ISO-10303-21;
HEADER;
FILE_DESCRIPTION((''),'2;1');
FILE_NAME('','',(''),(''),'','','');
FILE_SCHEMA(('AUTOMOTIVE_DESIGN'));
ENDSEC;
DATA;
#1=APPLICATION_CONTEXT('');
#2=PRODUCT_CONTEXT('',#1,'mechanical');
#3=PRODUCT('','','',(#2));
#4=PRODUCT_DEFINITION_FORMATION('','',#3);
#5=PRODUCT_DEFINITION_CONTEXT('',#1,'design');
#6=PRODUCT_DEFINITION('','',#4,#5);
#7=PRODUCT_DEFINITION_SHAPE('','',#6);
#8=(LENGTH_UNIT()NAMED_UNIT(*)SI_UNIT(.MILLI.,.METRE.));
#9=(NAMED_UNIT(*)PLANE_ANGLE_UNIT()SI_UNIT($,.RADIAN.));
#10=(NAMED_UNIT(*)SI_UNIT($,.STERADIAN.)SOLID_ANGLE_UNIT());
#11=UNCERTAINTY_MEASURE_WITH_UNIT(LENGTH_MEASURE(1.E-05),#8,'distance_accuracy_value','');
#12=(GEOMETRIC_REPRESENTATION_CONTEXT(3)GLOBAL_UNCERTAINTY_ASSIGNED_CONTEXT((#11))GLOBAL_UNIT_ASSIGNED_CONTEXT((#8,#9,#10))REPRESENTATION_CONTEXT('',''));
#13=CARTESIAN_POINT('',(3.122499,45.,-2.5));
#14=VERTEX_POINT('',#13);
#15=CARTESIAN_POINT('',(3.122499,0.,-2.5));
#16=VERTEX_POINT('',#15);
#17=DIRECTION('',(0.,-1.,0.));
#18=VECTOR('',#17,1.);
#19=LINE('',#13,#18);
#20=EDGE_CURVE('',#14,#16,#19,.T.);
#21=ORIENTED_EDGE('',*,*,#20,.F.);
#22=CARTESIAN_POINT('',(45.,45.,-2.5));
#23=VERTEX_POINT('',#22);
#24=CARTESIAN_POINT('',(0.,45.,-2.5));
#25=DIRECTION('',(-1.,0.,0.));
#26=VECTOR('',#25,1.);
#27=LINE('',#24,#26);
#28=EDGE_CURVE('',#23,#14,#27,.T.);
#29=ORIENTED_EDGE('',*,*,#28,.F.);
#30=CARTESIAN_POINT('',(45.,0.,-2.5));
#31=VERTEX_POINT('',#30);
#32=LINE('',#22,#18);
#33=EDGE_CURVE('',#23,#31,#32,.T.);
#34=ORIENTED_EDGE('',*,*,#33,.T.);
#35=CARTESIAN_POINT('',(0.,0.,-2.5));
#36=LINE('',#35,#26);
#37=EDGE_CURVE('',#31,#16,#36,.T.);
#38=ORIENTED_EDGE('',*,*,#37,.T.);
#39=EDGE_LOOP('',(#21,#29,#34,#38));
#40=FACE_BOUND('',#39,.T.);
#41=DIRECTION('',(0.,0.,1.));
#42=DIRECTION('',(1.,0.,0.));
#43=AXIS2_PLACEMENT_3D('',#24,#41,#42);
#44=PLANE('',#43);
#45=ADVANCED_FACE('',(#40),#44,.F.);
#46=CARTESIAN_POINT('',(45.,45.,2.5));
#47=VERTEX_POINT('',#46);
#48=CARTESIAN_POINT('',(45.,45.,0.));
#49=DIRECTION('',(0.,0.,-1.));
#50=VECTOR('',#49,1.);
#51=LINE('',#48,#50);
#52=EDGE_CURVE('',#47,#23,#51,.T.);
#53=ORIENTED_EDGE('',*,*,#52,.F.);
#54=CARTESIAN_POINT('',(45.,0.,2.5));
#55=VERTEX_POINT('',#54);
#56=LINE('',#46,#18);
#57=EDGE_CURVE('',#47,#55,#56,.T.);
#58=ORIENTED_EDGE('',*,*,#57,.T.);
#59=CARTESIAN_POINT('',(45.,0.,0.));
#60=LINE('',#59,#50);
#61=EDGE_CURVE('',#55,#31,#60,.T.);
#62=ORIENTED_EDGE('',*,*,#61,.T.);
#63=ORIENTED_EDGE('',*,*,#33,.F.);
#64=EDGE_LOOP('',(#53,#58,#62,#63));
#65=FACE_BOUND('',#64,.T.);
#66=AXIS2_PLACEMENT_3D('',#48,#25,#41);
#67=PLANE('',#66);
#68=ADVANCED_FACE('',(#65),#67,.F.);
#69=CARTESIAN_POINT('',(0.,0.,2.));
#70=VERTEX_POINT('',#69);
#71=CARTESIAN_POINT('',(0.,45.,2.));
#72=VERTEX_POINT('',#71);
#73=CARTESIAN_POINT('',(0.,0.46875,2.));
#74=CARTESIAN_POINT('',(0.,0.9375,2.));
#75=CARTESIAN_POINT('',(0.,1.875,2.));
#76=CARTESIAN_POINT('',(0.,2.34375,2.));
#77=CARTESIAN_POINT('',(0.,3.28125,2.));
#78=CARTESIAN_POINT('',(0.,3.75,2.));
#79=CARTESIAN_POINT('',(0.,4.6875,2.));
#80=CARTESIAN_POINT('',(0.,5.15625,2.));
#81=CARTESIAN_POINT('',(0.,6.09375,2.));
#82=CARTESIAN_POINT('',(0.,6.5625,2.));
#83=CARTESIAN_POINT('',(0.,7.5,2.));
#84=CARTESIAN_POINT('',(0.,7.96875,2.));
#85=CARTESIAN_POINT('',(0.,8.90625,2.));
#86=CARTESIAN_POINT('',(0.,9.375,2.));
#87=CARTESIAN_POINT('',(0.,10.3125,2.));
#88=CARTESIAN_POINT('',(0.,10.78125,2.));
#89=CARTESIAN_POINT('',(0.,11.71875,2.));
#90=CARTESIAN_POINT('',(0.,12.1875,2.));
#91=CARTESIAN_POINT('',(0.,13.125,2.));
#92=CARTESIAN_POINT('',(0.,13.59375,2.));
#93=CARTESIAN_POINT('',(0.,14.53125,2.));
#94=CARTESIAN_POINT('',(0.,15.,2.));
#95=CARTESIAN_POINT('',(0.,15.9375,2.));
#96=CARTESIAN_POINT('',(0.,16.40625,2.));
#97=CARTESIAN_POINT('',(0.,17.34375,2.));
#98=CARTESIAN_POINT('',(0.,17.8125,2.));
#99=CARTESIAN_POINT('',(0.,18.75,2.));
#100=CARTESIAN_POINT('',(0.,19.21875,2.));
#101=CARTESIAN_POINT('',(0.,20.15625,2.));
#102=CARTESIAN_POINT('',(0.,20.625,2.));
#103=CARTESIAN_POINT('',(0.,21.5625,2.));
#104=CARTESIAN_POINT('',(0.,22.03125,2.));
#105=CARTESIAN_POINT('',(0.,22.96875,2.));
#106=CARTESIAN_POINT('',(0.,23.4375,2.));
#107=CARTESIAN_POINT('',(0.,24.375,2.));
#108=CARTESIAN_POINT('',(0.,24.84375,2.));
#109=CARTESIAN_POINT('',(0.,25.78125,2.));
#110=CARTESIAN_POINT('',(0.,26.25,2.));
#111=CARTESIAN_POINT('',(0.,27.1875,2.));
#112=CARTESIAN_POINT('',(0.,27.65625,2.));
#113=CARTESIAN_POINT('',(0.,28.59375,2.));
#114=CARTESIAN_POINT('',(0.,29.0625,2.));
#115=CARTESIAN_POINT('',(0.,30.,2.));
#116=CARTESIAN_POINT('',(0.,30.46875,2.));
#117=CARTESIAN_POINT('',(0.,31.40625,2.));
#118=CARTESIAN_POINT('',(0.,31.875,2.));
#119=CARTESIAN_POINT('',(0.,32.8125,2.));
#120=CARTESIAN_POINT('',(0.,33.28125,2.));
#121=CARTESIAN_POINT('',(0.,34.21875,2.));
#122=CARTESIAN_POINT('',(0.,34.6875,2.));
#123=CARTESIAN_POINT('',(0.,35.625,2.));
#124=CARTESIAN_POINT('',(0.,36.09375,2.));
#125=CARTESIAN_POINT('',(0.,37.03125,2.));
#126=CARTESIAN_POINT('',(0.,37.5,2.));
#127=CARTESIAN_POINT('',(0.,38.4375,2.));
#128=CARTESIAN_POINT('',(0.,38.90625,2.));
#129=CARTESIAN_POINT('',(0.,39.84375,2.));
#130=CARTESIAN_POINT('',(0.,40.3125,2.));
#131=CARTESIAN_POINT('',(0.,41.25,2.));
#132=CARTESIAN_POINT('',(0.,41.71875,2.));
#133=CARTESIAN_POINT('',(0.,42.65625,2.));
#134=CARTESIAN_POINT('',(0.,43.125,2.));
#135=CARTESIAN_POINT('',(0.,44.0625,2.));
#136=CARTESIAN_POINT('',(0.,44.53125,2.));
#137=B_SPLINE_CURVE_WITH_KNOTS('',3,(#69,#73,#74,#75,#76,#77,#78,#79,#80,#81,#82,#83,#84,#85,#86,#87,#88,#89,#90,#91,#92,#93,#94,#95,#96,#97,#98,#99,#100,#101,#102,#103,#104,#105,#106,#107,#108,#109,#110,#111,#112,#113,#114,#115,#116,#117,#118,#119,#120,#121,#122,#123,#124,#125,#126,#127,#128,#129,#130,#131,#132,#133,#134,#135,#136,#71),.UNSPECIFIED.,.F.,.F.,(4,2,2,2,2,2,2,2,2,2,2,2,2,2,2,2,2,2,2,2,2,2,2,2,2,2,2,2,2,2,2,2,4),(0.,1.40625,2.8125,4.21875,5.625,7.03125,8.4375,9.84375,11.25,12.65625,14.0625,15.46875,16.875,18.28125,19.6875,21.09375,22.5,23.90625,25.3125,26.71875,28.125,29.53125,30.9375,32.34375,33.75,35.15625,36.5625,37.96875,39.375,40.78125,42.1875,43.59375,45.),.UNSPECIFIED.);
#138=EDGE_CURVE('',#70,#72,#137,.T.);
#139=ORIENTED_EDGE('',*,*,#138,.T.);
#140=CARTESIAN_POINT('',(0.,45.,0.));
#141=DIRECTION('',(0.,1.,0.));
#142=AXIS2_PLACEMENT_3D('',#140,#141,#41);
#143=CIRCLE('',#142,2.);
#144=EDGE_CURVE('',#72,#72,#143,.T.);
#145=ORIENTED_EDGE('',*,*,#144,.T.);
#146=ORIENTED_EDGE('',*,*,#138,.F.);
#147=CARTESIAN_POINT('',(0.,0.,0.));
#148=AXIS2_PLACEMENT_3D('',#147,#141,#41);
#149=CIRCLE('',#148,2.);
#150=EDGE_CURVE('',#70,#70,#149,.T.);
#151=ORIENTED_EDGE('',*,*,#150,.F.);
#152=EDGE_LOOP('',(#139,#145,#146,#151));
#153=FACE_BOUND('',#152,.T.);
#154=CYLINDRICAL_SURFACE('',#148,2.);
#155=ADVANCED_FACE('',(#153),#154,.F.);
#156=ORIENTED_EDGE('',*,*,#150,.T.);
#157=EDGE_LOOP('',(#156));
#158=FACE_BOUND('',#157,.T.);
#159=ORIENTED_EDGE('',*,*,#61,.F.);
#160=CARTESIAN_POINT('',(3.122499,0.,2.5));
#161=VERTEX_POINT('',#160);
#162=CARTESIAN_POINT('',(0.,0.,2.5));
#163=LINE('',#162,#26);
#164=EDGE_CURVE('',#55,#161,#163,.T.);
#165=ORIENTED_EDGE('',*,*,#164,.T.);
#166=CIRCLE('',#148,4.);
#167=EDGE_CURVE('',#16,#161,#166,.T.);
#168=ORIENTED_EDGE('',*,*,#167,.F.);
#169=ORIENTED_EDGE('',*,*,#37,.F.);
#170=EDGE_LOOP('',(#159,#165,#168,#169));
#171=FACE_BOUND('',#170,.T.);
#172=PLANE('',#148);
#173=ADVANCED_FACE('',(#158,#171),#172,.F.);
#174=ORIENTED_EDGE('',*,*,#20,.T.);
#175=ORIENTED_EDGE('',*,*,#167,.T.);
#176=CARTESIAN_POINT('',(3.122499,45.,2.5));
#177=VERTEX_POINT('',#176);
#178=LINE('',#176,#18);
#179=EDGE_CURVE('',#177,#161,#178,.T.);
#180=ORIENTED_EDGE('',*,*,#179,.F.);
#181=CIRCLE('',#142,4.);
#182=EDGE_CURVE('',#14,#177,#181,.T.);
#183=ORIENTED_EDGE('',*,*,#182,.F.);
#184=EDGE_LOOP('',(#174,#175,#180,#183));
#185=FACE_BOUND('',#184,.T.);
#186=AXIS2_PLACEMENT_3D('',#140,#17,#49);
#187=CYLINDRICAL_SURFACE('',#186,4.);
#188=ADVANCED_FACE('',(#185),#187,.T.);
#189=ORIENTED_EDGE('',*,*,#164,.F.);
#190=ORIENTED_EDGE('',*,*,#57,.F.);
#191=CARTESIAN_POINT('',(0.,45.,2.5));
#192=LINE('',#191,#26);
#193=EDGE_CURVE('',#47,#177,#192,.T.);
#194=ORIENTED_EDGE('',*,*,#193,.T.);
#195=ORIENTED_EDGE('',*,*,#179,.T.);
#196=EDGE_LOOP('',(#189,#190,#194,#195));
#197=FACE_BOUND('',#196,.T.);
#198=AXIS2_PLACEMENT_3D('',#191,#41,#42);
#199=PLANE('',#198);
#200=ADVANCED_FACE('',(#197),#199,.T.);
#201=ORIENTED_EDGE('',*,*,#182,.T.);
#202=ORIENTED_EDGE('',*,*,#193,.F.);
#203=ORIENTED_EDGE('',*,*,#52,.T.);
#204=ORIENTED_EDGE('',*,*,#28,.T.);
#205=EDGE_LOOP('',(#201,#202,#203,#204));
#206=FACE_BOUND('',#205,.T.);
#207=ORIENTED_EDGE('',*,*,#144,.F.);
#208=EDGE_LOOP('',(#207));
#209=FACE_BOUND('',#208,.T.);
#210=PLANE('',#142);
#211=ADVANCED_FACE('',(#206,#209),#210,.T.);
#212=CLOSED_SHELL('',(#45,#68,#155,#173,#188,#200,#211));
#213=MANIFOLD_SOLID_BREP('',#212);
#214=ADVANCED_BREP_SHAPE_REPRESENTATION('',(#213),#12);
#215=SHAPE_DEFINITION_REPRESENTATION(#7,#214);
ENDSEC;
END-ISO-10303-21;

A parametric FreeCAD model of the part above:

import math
import FreeCAD as App
import Part
import Sketcher
Q = App.Units.Quantity

doc = App.newDocument("Part")
body = doc.addObject("PartDesign::Body", "Body")

sketch1 = body.newObject("Sketcher::SketchObject", "Sketch")
sketch1.AttachmentSupport = (doc.getObject("XZ_Plane"), [""])
sketch1.MapMode = "FlatFace"
sketch1.addGeometry([
    Part.LineSegment(App.Vector(3.1, 2.5, 0), App.Vector(45, 2.5, 0)),
    Part.LineSegment(App.Vector(45, 2.5, 0), App.Vector(45, -2.5, 0)),
    Part.LineSegment(App.Vector(45, -2.5, 0), App.Vector(3.1, -2.5, 0)),
    Part.ArcOfCircle(Part.Circle(App.Vector(0, 0, 0), App.Vector(0, 0, 1), 4), math.radians(39), math.radians(321)),
], False)
sketch1.addConstraint([
    Sketcher.Constraint("Coincident", 0, 2, 1, 1),
    Sketcher.Constraint("Coincident", 1, 2, 2, 1),
    Sketcher.Constraint("Coincident", 2, 2, 3, 2),
    Sketcher.Constraint("Coincident", 3, 1, 0, 1),
    Sketcher.Constraint("Horizontal", 0),
    Sketcher.Constraint("Vertical", 1),
    Sketcher.Constraint("Horizontal", 2),
    Sketcher.Constraint("Coincident", 3, 3, -1, 1),
    Sketcher.Constraint("Vertical", 2, 2, 3, 1),
    Sketcher.Constraint("Radius", 3, Q("4 mm")),
    Sketcher.Constraint("DistanceY", 1, 2, 1, 1, Q("5 mm")),
    Sketcher.Constraint("DistanceX", -1, 1, 0, 2, Q("45 mm")),
])
pad1 = body.newObject("PartDesign::Pad", "Pad")
pad1.Profile = sketch1
pad1.Length = 45
pad1.Reversed = True

sketch2 = body.newObject("Sketcher::SketchObject", "Sketch001")
sketch2.AttachmentSupport = (doc.getObject("XZ_Plane"), [""])
sketch2.MapMode = "FlatFace"
sketch2.AttachmentOffset = App.Placement(App.Vector(0, 0, -45), App.Rotation())
sketch2.addGeometry(Part.Circle(App.Vector(0, 0, 0), App.Vector(0, 0, 1), 2), False)
sketch2.addConstraint([
    Sketcher.Constraint("Coincident", 0, 3, -1, 1),
    Sketcher.Constraint("Diameter", 0, Q("4 mm")),
])
pocket1 = body.newObject("PartDesign::Pocket", "Pocket")
pocket1.Profile = sketch2
pocket1.Type = "ThroughAll"
pocket1.Reversed = True

doc.recompute()
